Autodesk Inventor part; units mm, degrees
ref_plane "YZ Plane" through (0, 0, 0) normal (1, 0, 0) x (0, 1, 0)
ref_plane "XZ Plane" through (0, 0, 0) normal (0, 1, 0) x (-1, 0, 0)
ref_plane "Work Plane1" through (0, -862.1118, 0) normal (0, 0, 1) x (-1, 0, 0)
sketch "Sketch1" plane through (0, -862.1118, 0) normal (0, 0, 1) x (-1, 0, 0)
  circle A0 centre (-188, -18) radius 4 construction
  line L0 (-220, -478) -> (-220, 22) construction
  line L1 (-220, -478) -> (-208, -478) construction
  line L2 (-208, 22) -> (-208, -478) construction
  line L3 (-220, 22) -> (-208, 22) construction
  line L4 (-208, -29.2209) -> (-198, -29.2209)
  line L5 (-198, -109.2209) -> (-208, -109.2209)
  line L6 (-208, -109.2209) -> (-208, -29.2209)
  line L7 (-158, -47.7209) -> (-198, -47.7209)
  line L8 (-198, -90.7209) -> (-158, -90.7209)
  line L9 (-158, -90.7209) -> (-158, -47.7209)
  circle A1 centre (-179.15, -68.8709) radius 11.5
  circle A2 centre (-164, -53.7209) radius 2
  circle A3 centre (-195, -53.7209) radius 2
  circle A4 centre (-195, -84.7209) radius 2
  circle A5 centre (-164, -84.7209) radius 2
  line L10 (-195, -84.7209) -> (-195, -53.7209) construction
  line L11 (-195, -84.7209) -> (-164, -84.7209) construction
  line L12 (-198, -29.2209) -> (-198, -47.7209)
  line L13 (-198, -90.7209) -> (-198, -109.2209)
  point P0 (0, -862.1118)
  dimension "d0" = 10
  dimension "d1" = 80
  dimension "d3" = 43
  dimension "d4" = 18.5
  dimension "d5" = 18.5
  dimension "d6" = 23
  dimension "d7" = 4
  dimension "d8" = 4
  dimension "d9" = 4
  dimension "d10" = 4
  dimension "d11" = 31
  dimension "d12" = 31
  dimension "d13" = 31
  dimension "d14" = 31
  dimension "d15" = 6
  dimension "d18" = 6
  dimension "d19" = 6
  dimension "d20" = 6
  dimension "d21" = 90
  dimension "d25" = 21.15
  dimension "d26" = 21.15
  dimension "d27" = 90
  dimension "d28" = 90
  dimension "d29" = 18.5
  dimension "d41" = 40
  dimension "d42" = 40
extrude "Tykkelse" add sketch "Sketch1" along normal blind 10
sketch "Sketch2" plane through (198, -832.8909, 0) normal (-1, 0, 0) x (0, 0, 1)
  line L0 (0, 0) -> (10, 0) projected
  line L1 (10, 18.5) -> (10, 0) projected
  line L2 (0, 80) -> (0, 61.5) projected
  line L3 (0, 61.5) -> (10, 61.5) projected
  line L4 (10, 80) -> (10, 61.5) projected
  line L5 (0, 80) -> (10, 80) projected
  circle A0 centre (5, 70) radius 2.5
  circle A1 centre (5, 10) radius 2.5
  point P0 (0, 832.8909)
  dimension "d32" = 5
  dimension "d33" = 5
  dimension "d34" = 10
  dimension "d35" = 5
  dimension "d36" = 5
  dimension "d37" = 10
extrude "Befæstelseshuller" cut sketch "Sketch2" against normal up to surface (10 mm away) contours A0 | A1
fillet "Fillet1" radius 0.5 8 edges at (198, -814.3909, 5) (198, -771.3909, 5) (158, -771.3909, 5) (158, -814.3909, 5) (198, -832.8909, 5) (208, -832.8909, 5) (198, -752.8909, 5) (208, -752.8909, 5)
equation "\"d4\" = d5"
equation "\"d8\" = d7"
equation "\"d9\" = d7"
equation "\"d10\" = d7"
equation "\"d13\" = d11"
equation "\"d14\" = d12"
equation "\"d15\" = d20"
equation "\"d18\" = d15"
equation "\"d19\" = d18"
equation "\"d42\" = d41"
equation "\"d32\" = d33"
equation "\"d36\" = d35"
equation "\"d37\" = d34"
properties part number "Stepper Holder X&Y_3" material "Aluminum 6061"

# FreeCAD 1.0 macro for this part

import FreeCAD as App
import Part
import Sketcher

V = App.Vector
Q = App.Units.Quantity


def edges_at(feature, points):
    """Names of the edges that pass closest to the given points."""
    edges = feature.Shape.Edges
    near = lambda p: min(range(len(edges)), key=lambda i: edges[i].distToShape(Part.Vertex(*p))[0])
    return sorted({f"Edge{near(p) + 1}" for p in points})


def add_polygon(sketch, points):
    """Adds a closed chain of lines whose ends are joined by coincident constraints."""
    first, n = sketch.GeometryCount, len(points)
    for a, b in zip(points, points[1:] + points[:1]):
        sketch.addGeometry(Part.LineSegment(App.Vector(*a, 0), App.Vector(*b, 0)), False)
    for i in range(n):
        sketch.addConstraint(Sketcher.Constraint("Coincident", first + i, 2, first + (i + 1) % n, 1))

doc = App.newDocument("Part")
body = doc.addObject("PartDesign::Body", "Body")

sketch1 = doc.addObject("Sketcher::SketchObject", "Sketch")
body.addObject(sketch1)
sketch1.AttachmentSupport = (doc.XY_Plane, [""])
sketch1.MapMode = "FlatFace"
add_polygon(sketch1, [(198, -832.8909), (208, -832.8909), (208, -752.8909), (198, -752.8909), (198, -771.3909), (158, -771.3909), (158, -814.3909), (198, -814.3909)])
sketch1.addGeometry(Part.Circle(V(195, -777.3909, 0), V(0, 0, 1), 2), False)
sketch1.addGeometry(Part.Circle(V(164, -777.3909, 0), V(0, 0, 1), 2), False)
sketch1.addGeometry(Part.Circle(V(195, -808.3909, 0), V(0, 0, 1), 2), False)
sketch1.addGeometry(Part.Circle(V(179.15, -793.2409, 0), V(0, 0, 1), 11.5), False)
sketch1.addGeometry(Part.Circle(V(164, -808.3909, 0), V(0, 0, 1), 2), False)
sketch1.addConstraint([
    Sketcher.Constraint("Horizontal", 0),
    Sketcher.Constraint("Vertical", 1),
    Sketcher.Constraint("Horizontal", 2),
    Sketcher.Constraint("Vertical", 3),
    Sketcher.Constraint("Horizontal", 4),
    Sketcher.Constraint("Vertical", 5),
    Sketcher.Constraint("Horizontal", 6),
    Sketcher.Constraint("Vertical", 7),
    Sketcher.Constraint("Equal", 8, 9),
    Sketcher.Constraint("Equal", 9, 10),
    Sketcher.Constraint("Equal", 10, 12),
    Sketcher.Constraint("Horizontal", 8, 3, 9, 3),
    Sketcher.Constraint("Horizontal", 10, 3, 12, 3),
    Sketcher.Constraint("Vertical", 8, 3, 10, 3),
    Sketcher.Constraint("Vertical", 9, 3, 12, 3),
    Sketcher.Constraint("Vertical", 3, 2, 6, 2),
    Sketcher.Constraint("Equal", 3, 7),
    Sketcher.Constraint("Diameter", 8, Q("4 mm")),
    Sketcher.Constraint("Diameter", 11, Q("23 mm")),
    Sketcher.Constraint("DistanceX", 0, 1, 0, 2, Q("10 mm")),
    Sketcher.Constraint("DistanceX", 4, 2, 4, 1, Q("40 mm")),
    Sketcher.Constraint("DistanceY", 1, 1, 1, 2, Q("80 mm")),
    Sketcher.Constraint("DistanceY", 5, 2, 5, 1, Q("43 mm")),
    Sketcher.Constraint("DistanceX", 9, 3, 8, 3, Q("31 mm")),
    Sketcher.Constraint("DistanceY", 10, 3, 8, 3, Q("31 mm")),
    Sketcher.Constraint("DistanceY", 8, 3, 3, 2, Q("6 mm")),
    Sketcher.Constraint("DistanceX", 4, 2, 9, 3, Q("6 mm")),
    Sketcher.Constraint("DistanceX", 4, 2, 11, 3, Q("21.15 mm")),
    Sketcher.Constraint("DistanceY", 5, 2, 11, 3, Q("21.15 mm")),
    Sketcher.Constraint("DistanceX", -1, 1, 8, 3, Q("195 mm")),
    Sketcher.Constraint("DistanceY", 8, 3, -1, 1, Q("777.391 mm")),
])
pad1 = doc.addObject("PartDesign::Pad", "Pad")
body.addObject(pad1)
pad1.Profile = sketch1
pad1.Length = 10

sketch2 = doc.addObject("Sketcher::SketchObject", "Sketch001")
body.addObject(sketch2)
sketch2.AttachmentSupport = (doc.YZ_Plane, [""])
sketch2.MapMode = "FlatFace"
sketch2.AttachmentOffset = App.Placement(V(0, 0, 198), App.Rotation())
sketch2.addGeometry([
    Part.Circle(V(-762.8909, 5, 0), V(0, 0, 1), 2.5),
    Part.Circle(V(-822.8909, 5, 0), V(0, 0, 1), 2.5),
], False)
sketch2.addConstraint([
    Sketcher.Constraint("Equal", 0, 1),
    Sketcher.Constraint("Horizontal", 0, 3, 1, 3),
    Sketcher.Constraint("Diameter", 0, Q("5 mm")),
    Sketcher.Constraint("DistanceY", -1, 1, 0, 3, Q("5 mm")),
    Sketcher.Constraint("DistanceX", 1, 3, 0, 3, Q("60 mm")),
    Sketcher.Constraint("DistanceX", 0, 3, -1, 1, Q("762.891 mm")),
])
pocket1 = doc.addObject("PartDesign::Pocket", "Pocket")
body.addObject(pocket1)
pocket1.Profile = sketch2
pocket1.Length = 10
pocket1.Reversed = True
doc.recompute()

fillet = doc.addObject("PartDesign::Fillet", "Fillet")
body.addObject(fillet)
fillet.Base = (pocket1, edges_at(pocket1, [
    (198, -814.391, 5),
    (198, -771.391, 5),
    (158, -771.391, 5),
    (158, -814.391, 5),
    (198, -832.891, 5),
    (208, -832.891, 5),
    (198, -752.891, 5),
    (208, -752.891, 5),
]))
fillet.Radius = 0.5

doc.recompute()
